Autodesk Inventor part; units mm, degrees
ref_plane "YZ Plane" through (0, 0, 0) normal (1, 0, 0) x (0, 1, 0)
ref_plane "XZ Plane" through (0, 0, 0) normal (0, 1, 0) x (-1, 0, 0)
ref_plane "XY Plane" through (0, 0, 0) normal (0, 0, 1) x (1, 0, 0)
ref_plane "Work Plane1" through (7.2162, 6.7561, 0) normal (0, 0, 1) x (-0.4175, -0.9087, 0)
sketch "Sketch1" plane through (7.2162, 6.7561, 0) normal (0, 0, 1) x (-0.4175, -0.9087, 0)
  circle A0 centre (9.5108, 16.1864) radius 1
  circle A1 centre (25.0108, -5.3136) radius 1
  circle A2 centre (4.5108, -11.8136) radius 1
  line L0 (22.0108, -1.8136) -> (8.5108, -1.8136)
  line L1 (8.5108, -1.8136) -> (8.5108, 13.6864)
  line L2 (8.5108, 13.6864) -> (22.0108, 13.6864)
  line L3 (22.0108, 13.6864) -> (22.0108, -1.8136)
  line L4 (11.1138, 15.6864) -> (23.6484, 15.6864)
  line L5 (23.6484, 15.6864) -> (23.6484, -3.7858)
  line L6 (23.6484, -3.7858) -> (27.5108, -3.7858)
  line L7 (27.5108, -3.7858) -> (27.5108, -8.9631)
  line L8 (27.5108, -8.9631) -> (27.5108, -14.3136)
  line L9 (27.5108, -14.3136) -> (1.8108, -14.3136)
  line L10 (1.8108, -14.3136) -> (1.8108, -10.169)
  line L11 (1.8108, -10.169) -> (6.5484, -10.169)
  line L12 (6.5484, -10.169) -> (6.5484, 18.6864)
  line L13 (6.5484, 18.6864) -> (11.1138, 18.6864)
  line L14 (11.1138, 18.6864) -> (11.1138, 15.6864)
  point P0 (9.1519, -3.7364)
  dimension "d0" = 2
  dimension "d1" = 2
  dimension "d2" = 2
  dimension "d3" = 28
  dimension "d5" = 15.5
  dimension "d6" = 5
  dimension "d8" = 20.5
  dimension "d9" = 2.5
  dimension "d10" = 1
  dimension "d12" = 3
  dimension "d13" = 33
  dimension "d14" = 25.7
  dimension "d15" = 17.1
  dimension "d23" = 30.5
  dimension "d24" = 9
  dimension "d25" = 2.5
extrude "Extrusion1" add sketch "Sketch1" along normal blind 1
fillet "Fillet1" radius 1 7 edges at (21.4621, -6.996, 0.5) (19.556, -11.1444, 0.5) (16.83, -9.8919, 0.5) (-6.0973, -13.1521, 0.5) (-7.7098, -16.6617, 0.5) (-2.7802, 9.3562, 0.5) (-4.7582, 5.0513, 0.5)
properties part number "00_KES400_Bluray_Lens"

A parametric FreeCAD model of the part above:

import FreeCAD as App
import Part
import Sketcher

V = App.Vector


def edges_at(feature, points):
    """Names of the edges that pass closest to the given points."""
    edges = feature.Shape.Edges
    near = lambda p: min(range(len(edges)), key=lambda i: edges[i].distToShape(Part.Vertex(*p))[0])
    return sorted({f"Edge{near(p) + 1}" for p in points})


def add_polygon(sketch, points):
    """Adds a closed chain of lines whose ends are joined by coincident constraints."""
    first, n = sketch.GeometryCount, len(points)
    for a, b in zip(points, points[1:] + points[:1]):
        sketch.addGeometry(Part.LineSegment(App.Vector(*a, 0), App.Vector(*b, 0)), False)
    for i in range(n):
        sketch.addConstraint(Sketcher.Constraint("Coincident", first + i, 2, first + (i + 1) % n, 1))

doc = App.newDocument("Part")
body = doc.addObject("PartDesign::Body", "Body")

sketch1 = doc.addObject("Sketcher::SketchObject", "Sketch")
body.addObject(sketch1)
sketch1.AttachmentSupport = (doc.XY_Plane, [""])
sketch1.MapMode = "FlatFace"
add_polygon(sketch1, [(11.597133, -21.281685), (16.830219, -9.891733), (19.556261, -11.144207), (21.462276, -6.995715), (-4.758076, 5.051162), (-2.78017, 9.356129), (-6.546289, 11.086463), (-17.275814, -12.266637), (-7.709402, -16.661901), (-6.096884, -13.152212)])
sketch1.addGeometry(Part.Circle(V(-5.401813, 7.589297, 0), V(0, 0, 1), 1), False)
sketch1.addGeometry(Part.Circle(V(-8.053957, -13.752356, 0), V(0, 0, 1), 1), False)
sketch1.addGeometry(Part.Circle(V(17.953798, -8.643863, 0), V(0, 0, 1), 1), False)
add_polygon(sketch1, [(10.463455, -18.958647), (-3.6211, -12.487532), (2.015032, -0.22034), (16.099586, -6.691454)])
sketch1.addConstraint(Sketcher.Constraint("Equal", 10, 11))
sketch1.addConstraint(Sketcher.Constraint("Equal", 11, 12))
sketch1.addConstraint(Sketcher.Constraint("Perpendicular", 0, 1))
sketch1.addConstraint(Sketcher.Constraint("Perpendicular", 1, 2))
sketch1.addConstraint(Sketcher.Constraint("Perpendicular", 2, 3))
sketch1.addConstraint(Sketcher.Constraint("Perpendicular", 3, 4))
sketch1.addConstraint(Sketcher.Constraint("Perpendicular", 4, 5))
sketch1.addConstraint(Sketcher.Constraint("Perpendicular", 5, 6))
sketch1.addConstraint(Sketcher.Constraint("Perpendicular", 6, 7))
sketch1.addConstraint(Sketcher.Constraint("Perpendicular", 7, 8))
sketch1.addConstraint(Sketcher.Constraint("Perpendicular", 8, 9))
sketch1.addConstraint(Sketcher.Constraint("Parallel", 9, 13))
sketch1.addConstraint(Sketcher.Constraint("Perpendicular", 13, 14))
sketch1.addConstraint(Sketcher.Constraint("Perpendicular", 14, 15))
sketch1.addConstraint(Sketcher.Constraint("Perpendicular", 15, 16))
sketch1.addConstraint(Sketcher.Constraint("Diameter", 10, 2.0))
sketch1.addConstraint(Sketcher.Constraint("Distance", 1, 3.0))
sketch1.addConstraint(Sketcher.Constraint("Distance", 6, 25.7))
sketch1.addConstraint(Sketcher.Constraint("Distance", 13, 15.5))
sketch1.addConstraint(Sketcher.Constraint("DistanceY", 12, 3, 4, 2, 18.0))
sketch1.addConstraint(Sketcher.Constraint("Distance", 14, 13.5))
sketch1.addConstraint(Sketcher.Constraint("DistanceY", 1, 2, 12, 3, 2.5003))
sketch1.addConstraint(Sketcher.Constraint("DistanceY", 9, 2, 0, 2, 11.39))
sketch1.addConstraint(Sketcher.Constraint("DistanceX", 11, 3, -1, 1, 8.054))
sketch1.addConstraint(Sketcher.Constraint("DistanceX", 3, 2, -1, 1, 4.758))
sketch1.addConstraint(Sketcher.Constraint("DistanceY", 7, 2, -1, 1, 16.662))
sketch1.addConstraint(Sketcher.Constraint("DistanceX", 8, 2, -1, 1, 6.097))
sketch1.addConstraint(Sketcher.Constraint("DistanceX", 13, 2, -1, 1, 3.621))
sketch1.addConstraint(Sketcher.Constraint("DistanceX", -1, 1, 14, 2, 2.015))
sketch1.addConstraint(Sketcher.Constraint("DistanceX", 10, 3, 0, 2, 22.232))
sketch1.addConstraint(Sketcher.Constraint("DistanceY", 0, 2, 10, 3, 17.481))
sketch1.addConstraint(Sketcher.Constraint("DistanceX", 1, 2, 2, 2, 1.906))
sketch1.addConstraint(Sketcher.Constraint("DistanceY", 0, 2, 3, 2, 14.943))
sketch1.addConstraint(Sketcher.Constraint("DistanceX", 4, 2, 12, 3, 20.734))
sketch1.addConstraint(Sketcher.Constraint("DistanceX", 5, 2, 4, 2, 3.766))
sketch1.addConstraint(Sketcher.Constraint("DistanceY", 13, 2, 6, 2, 0.221))
sketch1.addConstraint(Sketcher.Constraint("DistanceY", 11, 3, -1, 1, 13.7524))
pad1 = doc.addObject("PartDesign::Pad", "Pad")
body.addObject(pad1)
pad1.Profile = sketch1
pad1.Length = 1
doc.recompute()

fillet = doc.addObject("PartDesign::Fillet", "Fillet")
body.addObject(fillet)
fillet.Base = (pad1, edges_at(pad1, [
    (21.462, -6.996, 0.5),
    (19.556, -11.144, 0.5),
    (16.83, -9.892, 0.5),
    (-6.097, -13.152, 0.5),
    (-7.71, -16.662, 0.5),
    (-2.78, 9.356, 0.5),
    (-4.758, 5.051, 0.5),
]))
fillet.Radius = 1

doc.recompute()
